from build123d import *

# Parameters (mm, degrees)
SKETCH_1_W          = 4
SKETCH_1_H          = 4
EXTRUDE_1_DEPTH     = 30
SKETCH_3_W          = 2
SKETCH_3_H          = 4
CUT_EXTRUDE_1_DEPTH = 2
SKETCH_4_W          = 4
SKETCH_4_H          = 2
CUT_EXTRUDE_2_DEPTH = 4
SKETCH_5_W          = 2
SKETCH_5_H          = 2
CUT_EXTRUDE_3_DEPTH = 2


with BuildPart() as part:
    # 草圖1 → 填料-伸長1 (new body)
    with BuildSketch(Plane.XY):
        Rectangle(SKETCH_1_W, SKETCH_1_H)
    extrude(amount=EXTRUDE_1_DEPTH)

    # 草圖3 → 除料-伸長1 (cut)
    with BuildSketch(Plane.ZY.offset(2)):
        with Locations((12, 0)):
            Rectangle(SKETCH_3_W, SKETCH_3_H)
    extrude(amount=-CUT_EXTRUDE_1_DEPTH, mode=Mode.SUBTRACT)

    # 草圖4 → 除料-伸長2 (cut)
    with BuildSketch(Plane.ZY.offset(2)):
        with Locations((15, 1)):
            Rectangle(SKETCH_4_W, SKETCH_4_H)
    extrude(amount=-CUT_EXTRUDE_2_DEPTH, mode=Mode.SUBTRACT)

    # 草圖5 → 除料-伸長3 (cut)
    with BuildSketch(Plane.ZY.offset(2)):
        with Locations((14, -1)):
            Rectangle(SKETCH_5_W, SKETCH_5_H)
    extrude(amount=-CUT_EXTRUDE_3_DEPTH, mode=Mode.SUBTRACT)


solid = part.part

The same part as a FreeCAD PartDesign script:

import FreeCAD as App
import Part
import Sketcher
from FreeCAD import Vector
Q = App.Units.Quantity

doc = App.newDocument("Part")
body = doc.addObject("PartDesign::Body", "Body")

# Sketch on XY plane
sketch1 = body.newObject("Sketcher::SketchObject", "Sketch")
sketch1.AttachmentSupport = (doc.getObject("XY_Plane"), [""])
sketch1.MapMode = "FlatFace"
sketch1.addGeometry(Part.LineSegment(Vector(-2, 2, 0), Vector(-2, -2, 0)), False)
sketch1.addGeometry(Part.LineSegment(Vector(-2, -2, 0), Vector(2, -2, 0)), False)
sketch1.addGeometry(Part.LineSegment(Vector(2, -2, 0), Vector(2, 2, 0)), False)
sketch1.addGeometry(Part.LineSegment(Vector(2, 2, 0), Vector(-2, 2, 0)), False)
sketch1.addConstraint(Sketcher.Constraint("Coincident", 0, 2, 1, 1))
sketch1.addConstraint(Sketcher.Constraint("Coincident", 1, 2, 2, 1))
sketch1.addConstraint(Sketcher.Constraint("Coincident", 2, 2, 3, 1))
sketch1.addConstraint(Sketcher.Constraint("Coincident", 3, 2, 0, 1))
sketch1.addConstraint(Sketcher.Constraint("Vertical", 0))
sketch1.addConstraint(Sketcher.Constraint("Horizontal", 1))
sketch1.addConstraint(Sketcher.Constraint("Vertical", 2))
sketch1.addConstraint(Sketcher.Constraint("Horizontal", 3))
sketch1.addConstraint(Sketcher.Constraint("Symmetric", 0, 2, 2, 2, -1, 1))
sketch1.addConstraint(Sketcher.Constraint("Equal", 3, 0))
sketch1.addConstraint(Sketcher.Constraint("DistanceX", 1, 1, 1, 2, Q("4 mm")))
pad1 = body.newObject("PartDesign::Pad", "Pad")
pad1.Profile = sketch1
pad1.Length = 30

# Sketch on YZ plane
sketch2 = body.newObject("Sketcher::SketchObject", "Sketch001")
sketch2.AttachmentSupport = (doc.getObject("YZ_Plane"), [""])
sketch2.MapMode = "FlatFace"
sketch2.AttachmentOffset = App.Placement(Vector(0, 0, -2), App.Rotation())
sketch2.addGeometry(Part.LineSegment(Vector(2, 11, 0), Vector(-2, 11, 0)), False)
sketch2.addGeometry(Part.LineSegment(Vector(-2, 11, 0), Vector(-2, 13, 0)), False)
sketch2.addGeometry(Part.LineSegment(Vector(-2, 13, 0), Vector(2, 13, 0)), False)
sketch2.addGeometry(Part.LineSegment(Vector(2, 13, 0), Vector(2, 11, 0)), False)
sketch2.addConstraint(Sketcher.Constraint("Coincident", 0, 2, 1, 1))
sketch2.addConstraint(Sketcher.Constraint("Coincident", 1, 2, 2, 1))
sketch2.addConstraint(Sketcher.Constraint("Coincident", 2, 2, 3, 1))
sketch2.addConstraint(Sketcher.Constraint("Coincident", 3, 2, 0, 1))
sketch2.addConstraint(Sketcher.Constraint("Horizontal", 0))
sketch2.addConstraint(Sketcher.Constraint("Vertical", 1))
sketch2.addConstraint(Sketcher.Constraint("Horizontal", 2))
sketch2.addConstraint(Sketcher.Constraint("Vertical", 3))
sketch2.addConstraint(Sketcher.Constraint("DistanceX", 0, 2, 0, 1, Q("4 mm")))
sketch2.addConstraint(Sketcher.Constraint("DistanceY", 1, 1, 1, 2, Q("2 mm")))
sketch2.addConstraint(Sketcher.Constraint("DistanceX", 0, 2, -1, 1, Q("2 mm")))
sketch2.addConstraint(Sketcher.Constraint("DistanceY", -1, 1, 0, 2, Q("11 mm")))
pocket1 = body.newObject("PartDesign::Pocket", "Pocket")
pocket1.Profile = sketch2
pocket1.Length = 2
pocket1.Reversed = True

# Sketch on YZ plane
sketch3 = body.newObject("Sketcher::SketchObject", "Sketch002")
sketch3.AttachmentSupport = (doc.getObject("YZ_Plane"), [""])
sketch3.MapMode = "FlatFace"
sketch3.AttachmentOffset = App.Placement(Vector(0, 0, -2), App.Rotation())
sketch3.addGeometry(Part.LineSegment(Vector(2, 13, 0), Vector(0, 13, 0)), False)
sketch3.addGeometry(Part.LineSegment(Vector(0, 13, 0), Vector(0, 17, 0)), False)
sketch3.addGeometry(Part.LineSegment(Vector(0, 17, 0), Vector(2, 17, 0)), False)
sketch3.addGeometry(Part.LineSegment(Vector(2, 17, 0), Vector(2, 13, 0)), False)
sketch3.addConstraint(Sketcher.Constraint("Coincident", 0, 2, 1, 1))
sketch3.addConstraint(Sketcher.Constraint("Coincident", 1, 2, 2, 1))
sketch3.addConstraint(Sketcher.Constraint("Coincident", 2, 2, 3, 1))
sketch3.addConstraint(Sketcher.Constraint("Coincident", 3, 2, 0, 1))
sketch3.addConstraint(Sketcher.Constraint("Horizontal", 0))
sketch3.addConstraint(Sketcher.Constraint("Vertical", 1))
sketch3.addConstraint(Sketcher.Constraint("Horizontal", 2))
sketch3.addConstraint(Sketcher.Constraint("Vertical", 3))
sketch3.addConstraint(Sketcher.Constraint("PointOnObject", 0, 2, -2))
sketch3.addConstraint(Sketcher.Constraint("DistanceX", 0, 2, 0, 1, Q("2 mm")))
sketch3.addConstraint(Sketcher.Constraint("DistanceY", 1, 1, 1, 2, Q("4 mm")))
sketch3.addConstraint(Sketcher.Constraint("DistanceY", -1, 1, 0, 2, Q("13 mm")))
pocket2 = body.newObject("PartDesign::Pocket", "Pocket001")
pocket2.Profile = sketch3
pocket2.Length = 4
pocket2.Reversed = True

# Sketch on YZ plane
sketch4 = body.newObject("Sketcher::SketchObject", "Sketch003")
sketch4.AttachmentSupport = (doc.getObject("YZ_Plane"), [""])
sketch4.MapMode = "FlatFace"
sketch4.AttachmentOffset = App.Placement(Vector(0, 0, -2), App.Rotation())
sketch4.addGeometry(Part.LineSegment(Vector(0, 13, 0), Vector(-2, 13, 0)), False)
sketch4.addGeometry(Part.LineSegment(Vector(-2, 13, 0), Vector(-2, 15, 0)), False)
sketch4.addGeometry(Part.LineSegment(Vector(-2, 15, 0), Vector(0, 15, 0)), False)
sketch4.addGeometry(Part.LineSegment(Vector(0, 15, 0), Vector(0, 13, 0)), False)
sketch4.addConstraint(Sketcher.Constraint("Coincident", 0, 2, 1, 1))
sketch4.addConstraint(Sketcher.Constraint("Coincident", 1, 2, 2, 1))
sketch4.addConstraint(Sketcher.Constraint("Coincident", 2, 2, 3, 1))
sketch4.addConstraint(Sketcher.Constraint("Coincident", 3, 2, 0, 1))
sketch4.addConstraint(Sketcher.Constraint("Horizontal", 0))
sketch4.addConstraint(Sketcher.Constraint("Vertical", 1))
sketch4.addConstraint(Sketcher.Constraint("Horizontal", 2))
sketch4.addConstraint(Sketcher.Constraint("Vertical", 3))
sketch4.addConstraint(Sketcher.Constraint("PointOnObject", 2, 2, -2))
sketch4.addConstraint(Sketcher.Constraint("Equal", 2, 1))
sketch4.addConstraint(Sketcher.Constraint("DistanceX", 0, 2, 0, 1, Q("2 mm")))
sketch4.addConstraint(Sketcher.Constraint("DistanceY", -1, 1, 0, 2, Q("13 mm")))
pocket3 = body.newObject("PartDesign::Pocket", "Pocket002")
pocket3.Profile = sketch4
pocket3.Length = 2
pocket3.Reversed = True

doc.recompute()
